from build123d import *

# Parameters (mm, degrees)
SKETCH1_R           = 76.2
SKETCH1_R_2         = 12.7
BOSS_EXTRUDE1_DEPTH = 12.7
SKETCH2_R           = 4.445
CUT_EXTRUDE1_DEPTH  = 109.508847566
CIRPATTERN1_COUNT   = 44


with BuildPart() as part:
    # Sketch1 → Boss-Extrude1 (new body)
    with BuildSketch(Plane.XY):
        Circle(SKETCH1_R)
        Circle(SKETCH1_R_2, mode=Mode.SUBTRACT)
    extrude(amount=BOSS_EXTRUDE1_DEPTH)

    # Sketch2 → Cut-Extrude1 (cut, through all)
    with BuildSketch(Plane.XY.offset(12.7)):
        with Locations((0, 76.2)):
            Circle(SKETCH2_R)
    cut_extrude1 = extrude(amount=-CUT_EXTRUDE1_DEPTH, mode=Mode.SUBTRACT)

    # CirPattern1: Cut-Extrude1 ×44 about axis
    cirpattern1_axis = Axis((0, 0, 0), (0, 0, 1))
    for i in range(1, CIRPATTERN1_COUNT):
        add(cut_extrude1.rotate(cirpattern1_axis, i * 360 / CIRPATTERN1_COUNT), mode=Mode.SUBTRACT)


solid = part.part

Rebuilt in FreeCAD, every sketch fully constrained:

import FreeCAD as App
import Part
import Sketcher
from FreeCAD import Vector
Q = App.Units.Quantity

doc = App.newDocument("Part")
params = doc.addObject("Spreadsheet::Sheet", "Params")
for row, (alias, value) in enumerate([
    ("sketch1_diameter", "6 in"),
    ("sketch1_diameter2", "1 in"),
    ("pad1_length", "0.5 in"),
    ("sketch2_diameter", "0.35 in"),
], start=1):
    params.set(f"A{row}", alias)
    params.set(f"B{row}", "=" + value)
    params.setAlias(f"B{row}", alias)

body = doc.addObject("PartDesign::Body", "Body")

sketch1 = body.newObject("Sketcher::SketchObject", "Sketch")
sketch1.AttachmentSupport = (doc.getObject("XY_Plane"), [""])
sketch1.MapMode = "FlatFace"
sketch1.addGeometry([
    Part.Circle(Vector(0, 0, 0), Vector(0, 0, 1), 76.2),
    Part.Circle(Vector(0, 0, 0), Vector(0, 0, 1), 12.7),
], False)
sketch1.addConstraint([
    Sketcher.Constraint("Coincident", 0, 3, -1, 1),
    Sketcher.Constraint("Coincident", 1, 3, -1, 1),
    Sketcher.Constraint("Diameter", 0, Q("6 in")),
    Sketcher.Constraint("Diameter", 1, Q("1 in")),
])
sketch1.setExpression("Constraints[2]", "Params.sketch1_diameter")
sketch1.setExpression("Constraints[3]", "Params.sketch1_diameter2")
pad1 = body.newObject("PartDesign::Pad", "Pad")
pad1.Profile = sketch1
pad1.setExpression("Length", "Params.pad1_length")

sketch2 = body.newObject("Sketcher::SketchObject", "Sketch001")
sketch2.AttachmentSupport = (doc.getObject("XY_Plane"), [""])
sketch2.MapMode = "FlatFace"
sketch2.AttachmentOffset = App.Placement(Vector(0, 0, 0.5 * 25.4), App.Rotation())
sketch2.addGeometry(Part.Circle(Vector(0, 76.2, 0), Vector(0, 0, 1), 4.445), False)
sketch2.addConstraint([
    Sketcher.Constraint("PointOnObject", 0, 3, -2),
    Sketcher.Constraint("Diameter", 0, Q("0.35 in")),
    Sketcher.Constraint("DistanceY", -1, 1, 0, 3, Q("3 in")),
])
sketch2.setExpression("Constraints[1]", "Params.sketch2_diameter")
pocket1 = body.newObject("PartDesign::Pocket", "Pocket")
pocket1.Profile = sketch2
pocket1.Type = "ThroughAll"
doc.recompute()

polarpattern = body.newObject("PartDesign::PolarPattern", "PolarPattern")
polarpattern.Originals = [pocket1]
polarpattern.Axis = (doc.getObject("Z_Axis"), [""])
polarpattern.Angle = 360
polarpattern.Occurrences = 44
body.Tip = polarpattern

doc.recompute()
